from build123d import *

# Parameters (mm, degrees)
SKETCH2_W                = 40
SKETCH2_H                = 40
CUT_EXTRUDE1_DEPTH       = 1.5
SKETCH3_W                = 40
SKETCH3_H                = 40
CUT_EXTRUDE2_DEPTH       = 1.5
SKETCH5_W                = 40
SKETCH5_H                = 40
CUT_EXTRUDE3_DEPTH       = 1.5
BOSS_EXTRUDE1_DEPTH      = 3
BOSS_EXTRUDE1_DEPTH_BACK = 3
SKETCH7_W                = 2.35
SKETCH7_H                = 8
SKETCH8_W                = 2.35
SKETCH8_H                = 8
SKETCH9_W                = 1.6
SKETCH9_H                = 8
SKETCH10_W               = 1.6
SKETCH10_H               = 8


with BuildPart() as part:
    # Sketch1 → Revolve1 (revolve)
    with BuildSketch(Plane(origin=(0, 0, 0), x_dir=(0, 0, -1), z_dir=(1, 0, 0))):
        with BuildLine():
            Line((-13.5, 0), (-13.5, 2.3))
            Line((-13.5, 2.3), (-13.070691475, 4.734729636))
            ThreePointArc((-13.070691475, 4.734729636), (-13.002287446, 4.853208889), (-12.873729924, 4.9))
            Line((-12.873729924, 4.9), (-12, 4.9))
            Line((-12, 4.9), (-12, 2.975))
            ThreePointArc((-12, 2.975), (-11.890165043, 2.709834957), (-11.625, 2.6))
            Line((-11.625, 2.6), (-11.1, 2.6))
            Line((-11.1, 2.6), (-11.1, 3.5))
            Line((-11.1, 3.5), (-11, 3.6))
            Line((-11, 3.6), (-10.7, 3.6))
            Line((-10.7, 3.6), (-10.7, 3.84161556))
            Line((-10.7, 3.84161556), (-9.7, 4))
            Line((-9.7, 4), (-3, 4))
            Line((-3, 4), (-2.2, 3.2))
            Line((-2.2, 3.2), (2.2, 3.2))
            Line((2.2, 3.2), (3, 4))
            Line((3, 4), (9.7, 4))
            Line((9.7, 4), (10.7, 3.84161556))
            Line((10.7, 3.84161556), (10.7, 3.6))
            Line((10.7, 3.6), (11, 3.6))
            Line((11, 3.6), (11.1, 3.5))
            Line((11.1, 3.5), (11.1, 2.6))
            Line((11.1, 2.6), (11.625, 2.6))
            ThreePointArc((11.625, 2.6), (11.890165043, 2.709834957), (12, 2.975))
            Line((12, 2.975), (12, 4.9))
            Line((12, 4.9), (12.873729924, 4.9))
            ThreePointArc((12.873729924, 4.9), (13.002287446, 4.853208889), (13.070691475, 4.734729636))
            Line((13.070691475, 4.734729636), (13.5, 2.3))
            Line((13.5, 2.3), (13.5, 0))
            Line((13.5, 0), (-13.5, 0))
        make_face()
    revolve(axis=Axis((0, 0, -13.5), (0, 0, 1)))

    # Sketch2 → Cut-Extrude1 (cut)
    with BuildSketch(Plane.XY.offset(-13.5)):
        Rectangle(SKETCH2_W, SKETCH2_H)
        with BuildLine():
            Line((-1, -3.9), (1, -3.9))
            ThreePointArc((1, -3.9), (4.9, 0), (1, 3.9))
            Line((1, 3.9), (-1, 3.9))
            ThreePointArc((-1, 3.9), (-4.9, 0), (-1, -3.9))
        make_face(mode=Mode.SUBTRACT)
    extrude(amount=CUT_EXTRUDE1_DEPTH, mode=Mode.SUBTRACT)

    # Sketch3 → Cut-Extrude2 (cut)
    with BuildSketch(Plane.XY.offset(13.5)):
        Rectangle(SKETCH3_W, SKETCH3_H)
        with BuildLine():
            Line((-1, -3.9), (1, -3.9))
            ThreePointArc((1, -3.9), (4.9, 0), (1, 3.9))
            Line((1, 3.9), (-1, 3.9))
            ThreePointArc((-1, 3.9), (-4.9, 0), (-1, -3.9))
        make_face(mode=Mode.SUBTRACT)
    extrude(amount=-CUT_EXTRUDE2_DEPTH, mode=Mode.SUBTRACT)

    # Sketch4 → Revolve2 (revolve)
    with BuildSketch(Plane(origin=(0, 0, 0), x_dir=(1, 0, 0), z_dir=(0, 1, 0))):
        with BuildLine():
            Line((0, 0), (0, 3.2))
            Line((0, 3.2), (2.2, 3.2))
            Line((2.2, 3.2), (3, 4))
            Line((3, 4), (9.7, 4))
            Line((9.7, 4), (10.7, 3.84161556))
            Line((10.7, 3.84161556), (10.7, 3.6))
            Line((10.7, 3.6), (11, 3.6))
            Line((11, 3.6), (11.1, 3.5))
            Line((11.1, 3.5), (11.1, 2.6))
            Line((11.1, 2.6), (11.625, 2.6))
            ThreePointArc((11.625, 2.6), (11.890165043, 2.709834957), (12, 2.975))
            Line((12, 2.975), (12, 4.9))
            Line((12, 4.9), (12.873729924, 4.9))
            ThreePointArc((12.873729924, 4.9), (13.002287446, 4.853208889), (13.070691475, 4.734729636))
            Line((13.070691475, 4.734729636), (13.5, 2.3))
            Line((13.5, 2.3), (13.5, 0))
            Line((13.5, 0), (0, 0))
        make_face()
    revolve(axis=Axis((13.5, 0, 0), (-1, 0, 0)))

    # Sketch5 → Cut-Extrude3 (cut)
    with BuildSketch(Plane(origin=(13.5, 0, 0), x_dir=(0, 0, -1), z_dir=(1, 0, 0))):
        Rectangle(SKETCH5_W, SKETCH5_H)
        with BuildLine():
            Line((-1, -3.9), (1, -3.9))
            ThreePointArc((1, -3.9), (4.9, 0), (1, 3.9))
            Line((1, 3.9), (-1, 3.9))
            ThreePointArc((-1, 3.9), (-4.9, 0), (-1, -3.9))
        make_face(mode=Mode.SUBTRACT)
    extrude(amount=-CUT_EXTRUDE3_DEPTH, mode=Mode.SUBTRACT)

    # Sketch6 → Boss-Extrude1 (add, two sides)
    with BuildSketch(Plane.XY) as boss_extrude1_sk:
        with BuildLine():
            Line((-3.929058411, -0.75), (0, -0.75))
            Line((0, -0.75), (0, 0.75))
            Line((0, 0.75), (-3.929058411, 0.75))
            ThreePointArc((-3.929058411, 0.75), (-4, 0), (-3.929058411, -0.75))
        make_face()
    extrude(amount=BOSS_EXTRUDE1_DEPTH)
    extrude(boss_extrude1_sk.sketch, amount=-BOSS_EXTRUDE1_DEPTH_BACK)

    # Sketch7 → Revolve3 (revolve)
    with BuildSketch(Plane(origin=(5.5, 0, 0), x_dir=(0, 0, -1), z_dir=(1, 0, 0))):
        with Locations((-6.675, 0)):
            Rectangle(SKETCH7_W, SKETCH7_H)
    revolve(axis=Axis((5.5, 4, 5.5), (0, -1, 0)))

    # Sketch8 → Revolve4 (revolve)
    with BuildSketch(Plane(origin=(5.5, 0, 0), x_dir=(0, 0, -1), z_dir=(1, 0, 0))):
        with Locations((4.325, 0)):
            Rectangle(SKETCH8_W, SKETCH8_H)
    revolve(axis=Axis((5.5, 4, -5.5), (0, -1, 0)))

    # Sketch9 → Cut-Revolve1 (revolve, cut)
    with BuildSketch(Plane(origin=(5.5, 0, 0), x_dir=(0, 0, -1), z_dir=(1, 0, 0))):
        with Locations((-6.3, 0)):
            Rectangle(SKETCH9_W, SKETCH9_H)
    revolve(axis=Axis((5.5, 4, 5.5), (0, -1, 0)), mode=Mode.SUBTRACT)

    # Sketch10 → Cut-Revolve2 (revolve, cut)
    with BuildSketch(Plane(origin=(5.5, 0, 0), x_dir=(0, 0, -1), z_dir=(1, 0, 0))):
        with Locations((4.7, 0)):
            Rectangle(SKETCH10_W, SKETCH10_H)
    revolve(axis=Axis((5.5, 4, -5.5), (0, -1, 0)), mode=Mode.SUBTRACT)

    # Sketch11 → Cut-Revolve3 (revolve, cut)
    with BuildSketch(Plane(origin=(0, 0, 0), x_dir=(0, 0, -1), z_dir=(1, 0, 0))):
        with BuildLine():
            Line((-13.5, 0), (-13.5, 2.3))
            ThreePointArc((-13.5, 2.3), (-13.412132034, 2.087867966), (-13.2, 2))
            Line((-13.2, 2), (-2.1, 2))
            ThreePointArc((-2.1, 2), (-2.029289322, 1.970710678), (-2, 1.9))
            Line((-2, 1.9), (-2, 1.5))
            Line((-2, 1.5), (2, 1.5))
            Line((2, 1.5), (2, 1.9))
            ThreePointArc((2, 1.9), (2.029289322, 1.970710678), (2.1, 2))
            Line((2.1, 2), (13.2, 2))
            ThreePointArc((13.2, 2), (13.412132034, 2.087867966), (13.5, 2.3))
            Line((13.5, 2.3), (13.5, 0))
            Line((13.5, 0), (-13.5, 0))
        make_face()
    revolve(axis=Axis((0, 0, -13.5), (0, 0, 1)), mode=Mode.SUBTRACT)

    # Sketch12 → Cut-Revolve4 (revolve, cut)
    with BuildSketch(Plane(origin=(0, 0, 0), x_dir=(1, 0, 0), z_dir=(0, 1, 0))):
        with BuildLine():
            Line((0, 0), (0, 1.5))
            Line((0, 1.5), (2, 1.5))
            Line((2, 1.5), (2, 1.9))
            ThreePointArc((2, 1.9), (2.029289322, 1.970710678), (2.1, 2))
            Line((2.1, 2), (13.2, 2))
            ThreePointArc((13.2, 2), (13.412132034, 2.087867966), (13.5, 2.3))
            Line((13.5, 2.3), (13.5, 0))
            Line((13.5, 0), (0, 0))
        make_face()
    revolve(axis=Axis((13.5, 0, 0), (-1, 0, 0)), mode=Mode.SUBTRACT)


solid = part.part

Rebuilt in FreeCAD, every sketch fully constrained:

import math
import FreeCAD as App
import Part
import Sketcher

V = App.Vector
Q = App.Units.Quantity


def add_polygon(sketch, points):
    """Adds a closed chain of lines whose ends are joined by coincident constraints."""
    first, n = sketch.GeometryCount, len(points)
    for a, b in zip(points, points[1:] + points[:1]):
        sketch.addGeometry(Part.LineSegment(App.Vector(*a, 0), App.Vector(*b, 0)), False)
    for i in range(n):
        sketch.addConstraint(Sketcher.Constraint("Coincident", first + i, 2, first + (i + 1) % n, 1))

doc = App.newDocument("Part")
body = doc.addObject("PartDesign::Body", "Body")

sketch1 = doc.addObject("Sketcher::SketchObject", "Sketch")
body.addObject(sketch1)
sketch1.AttachmentSupport = (doc.YZ_Plane, [""])
sketch1.MapMode = "FlatFace"
sketch1.addGeometry(Part.LineSegment(V(2.3, 13.5, 0), V(0, 13.5, 0)), False)
sketch1.addGeometry(Part.LineSegment(V(0, 13.5, 0), V(0, -13.5, 0)), False)
sketch1.addGeometry(Part.LineSegment(V(0, -13.5, 0), V(2.3, -13.5, 0)), False)
sketch1.addGeometry(Part.LineSegment(V(2.3, -13.5, 0), V(4.73, -13.07, 0)), False)
sketch1.addGeometry(Part.ArcOfCircle(Part.Circle(V(4.7, -12.87, 0), V(0, 0, 1), 0.2), math.radians(-80), math.radians(0)), False)
sketch1.addGeometry(Part.LineSegment(V(4.9, -12.87, 0), V(4.9, -12, 0)), False)
sketch1.addGeometry(Part.LineSegment(V(4.9, -12, 0), V(2.98, -12, 0)), False)
sketch1.addGeometry(Part.ArcOfCircle(Part.Circle(V(2.98, -11.62, 0), V(0, 0, 1), 0.38), math.radians(180), math.radians(270)), False)
sketch1.addGeometry(Part.LineSegment(V(2.6, -11.62, 0), V(2.6, -11.1, 0)), False)
sketch1.addGeometry(Part.LineSegment(V(2.6, -11.1, 0), V(3.5, -11.1, 0)), False)
sketch1.addGeometry(Part.LineSegment(V(3.5, -11.1, 0), V(3.6, -11, 0)), False)
sketch1.addGeometry(Part.LineSegment(V(3.6, -11, 0), V(3.6, -10.7, 0)), False)
sketch1.addGeometry(Part.LineSegment(V(3.6, -10.7, 0), V(3.84, -10.7, 0)), False)
sketch1.addGeometry(Part.LineSegment(V(3.84, -10.7, 0), V(4, -9.7, 0)), False)
sketch1.addGeometry(Part.LineSegment(V(4, -9.7, 0), V(4, -3, 0)), False)
sketch1.addGeometry(Part.LineSegment(V(4, -3, 0), V(3.2, -2.2, 0)), False)
sketch1.addGeometry(Part.LineSegment(V(3.2, -2.2, 0), V(3.2, 2.2, 0)), False)
sketch1.addGeometry(Part.LineSegment(V(3.2, 2.2, 0), V(4, 3, 0)), False)
sketch1.addGeometry(Part.LineSegment(V(4, 3, 0), V(4, 9.7, 0)), False)
sketch1.addGeometry(Part.LineSegment(V(4, 9.7, 0), V(3.84, 10.7, 0)), False)
sketch1.addGeometry(Part.LineSegment(V(3.84, 10.7, 0), V(3.6, 10.7, 0)), False)
sketch1.addGeometry(Part.LineSegment(V(3.6, 10.7, 0), V(3.6, 11, 0)), False)
sketch1.addGeometry(Part.LineSegment(V(3.6, 11, 0), V(3.5, 11.1, 0)), False)
sketch1.addGeometry(Part.LineSegment(V(3.5, 11.1, 0), V(2.6, 11.1, 0)), False)
sketch1.addGeometry(Part.LineSegment(V(2.6, 11.1, 0), V(2.6, 11.62, 0)), False)
sketch1.addGeometry(Part.ArcOfCircle(Part.Circle(V(2.98, 11.62, 0), V(0, 0, 1), 0.38), math.radians(90), math.radians(180)), False)
sketch1.addGeometry(Part.LineSegment(V(2.98, 12, 0), V(4.9, 12, 0)), False)
sketch1.addGeometry(Part.LineSegment(V(4.9, 12, 0), V(4.9, 12.87, 0)), False)
sketch1.addGeometry(Part.ArcOfCircle(Part.Circle(V(4.7, 12.87, 0), V(0, 0, 1), 0.2), math.radians(0), math.radians(80)), False)
sketch1.addGeometry(Part.LineSegment(V(4.73, 13.07, 0), V(2.3, 13.5, 0)), False)
sketch1.addConstraint(Sketcher.Constraint("Coincident", 0, 2, 1, 1))
sketch1.addConstraint(Sketcher.Constraint("Coincident", 1, 2, 2, 1))
sketch1.addConstraint(Sketcher.Constraint("Coincident", 2, 2, 3, 1))
sketch1.addConstraint(Sketcher.Constraint("Tangent", 3, 2, 4, 1))
sketch1.addConstraint(Sketcher.Constraint("Tangent", 4, 2, 5, 1))
sketch1.addConstraint(Sketcher.Constraint("Coincident", 5, 2, 6, 1))
sketch1.addConstraint(Sketcher.Constraint("Tangent", 6, 2, 7, 2))
sketch1.addConstraint(Sketcher.Constraint("Tangent", 7, 1, 8, 1))
sketch1.addConstraint(Sketcher.Constraint("Coincident", 8, 2, 9, 1))
sketch1.addConstraint(Sketcher.Constraint("Coincident", 9, 2, 10, 1))
sketch1.addConstraint(Sketcher.Constraint("Coincident", 10, 2, 11, 1))
sketch1.addConstraint(Sketcher.Constraint("Coincident", 11, 2, 12, 1))
sketch1.addConstraint(Sketcher.Constraint("Coincident", 12, 2, 13, 1))
sketch1.addConstraint(Sketcher.Constraint("Coincident", 13, 2, 14, 1))
sketch1.addConstraint(Sketcher.Constraint("Coincident", 14, 2, 15, 1))
sketch1.addConstraint(Sketcher.Constraint("Coincident", 15, 2, 16, 1))
sketch1.addConstraint(Sketcher.Constraint("Coincident", 16, 2, 17, 1))
sketch1.addConstraint(Sketcher.Constraint("Coincident", 17, 2, 18, 1))
sketch1.addConstraint(Sketcher.Constraint("Coincident", 18, 2, 19, 1))
sketch1.addConstraint(Sketcher.Constraint("Coincident", 19, 2, 20, 1))
sketch1.addConstraint(Sketcher.Constraint("Coincident", 20, 2, 21, 1))
sketch1.addConstraint(Sketcher.Constraint("Coincident", 21, 2, 22, 1))
sketch1.addConstraint(Sketcher.Constraint("Coincident", 22, 2, 23, 1))
sketch1.addConstraint(Sketcher.Constraint("Coincident", 23, 2, 24, 1))
sketch1.addConstraint(Sketcher.Constraint("Tangent", 24, 2, 25, 2))
sketch1.addConstraint(Sketcher.Constraint("Tangent", 25, 1, 26, 1))
sketch1.addConstraint(Sketcher.Constraint("Coincident", 26, 2, 27, 1))
sketch1.addConstraint(Sketcher.Constraint("Tangent", 27, 2, 28, 1))
sketch1.addConstraint(Sketcher.Constraint("Tangent", 28, 2, 29, 1))
sketch1.addConstraint(Sketcher.Constraint("Coincident", 29, 2, 0, 1))
sketch1.addConstraint(Sketcher.Constraint("Horizontal", 0))
sketch1.addConstraint(Sketcher.Constraint("Vertical", 1))
sketch1.addConstraint(Sketcher.Constraint("Horizontal", 2))
sketch1.addConstraint(Sketcher.Constraint("Vertical", 5))
sketch1.addConstraint(Sketcher.Constraint("Horizontal", 6))
sketch1.addConstraint(Sketcher.Constraint("Vertical", 8))
sketch1.addConstraint(Sketcher.Constraint("Horizontal", 9))
sketch1.addConstraint(Sketcher.Constraint("Vertical", 11))
sketch1.addConstraint(Sketcher.Constraint("Horizontal", 12))
sketch1.addConstraint(Sketcher.Constraint("Vertical", 14))
sketch1.addConstraint(Sketcher.Constraint("Vertical", 16))
sketch1.addConstraint(Sketcher.Constraint("Vertical", 18))
sketch1.addConstraint(Sketcher.Constraint("Horizontal", 20))
sketch1.addConstraint(Sketcher.Constraint("Vertical", 21))
sketch1.addConstraint(Sketcher.Constraint("Horizontal", 23))
sketch1.addConstraint(Sketcher.Constraint("Vertical", 24))
sketch1.addConstraint(Sketcher.Constraint("Horizontal", 26))
sketch1.addConstraint(Sketcher.Constraint("Vertical", 27))
sketch1.addConstraint(Sketcher.Constraint("Equal", 7, 25))
sketch1.addConstraint(Sketcher.Constraint("Equal", 4, 28))
sketch1.addConstraint(Sketcher.Constraint("Symmetric", 0, 2, 1, 2, -1, 1))
sketch1.addConstraint(Sketcher.Constraint("Symmetric", 7, 3, 25, 3, -1))
sketch1.addConstraint(Sketcher.Constraint("Symmetric", 4, 3, 28, 3, -1))
sketch1.addConstraint(Sketcher.Constraint("Symmetric", 14, 2, 17, 2, -1))
sketch1.addConstraint(Sketcher.Constraint("Symmetric", 12, 2, 19, 2, -1))
sketch1.addConstraint(Sketcher.Constraint("Symmetric", 10, 2, 21, 2, -1))
sketch1.addConstraint(Sketcher.Constraint("Symmetric", 9, 2, 22, 2, -1))
sketch1.addConstraint(Sketcher.Constraint("Perpendicular", 10, 15))
sketch1.addConstraint(Sketcher.Constraint("Perpendicular", 15, 17))
sketch1.addConstraint(Sketcher.Constraint("Perpendicular", 17, 22))
sketch1.addConstraint(Sketcher.Constraint("Vertical", 3, 2, 28, 2))
sketch1.addConstraint(Sketcher.Constraint("Equal", 14, 18))
sketch1.addConstraint(Sketcher.Constraint("Radius", 4, Q("0.2 mm")))
sketch1.addConstraint(Sketcher.Constraint("DistanceY", 1, 2, 1, 1, Q("27 mm")))
sketch1.addConstraint(Sketcher.Constraint("Angle", 3, Q("10 deg")))
sketch1.addConstraint(Sketcher.Constraint("Angle", 13, Q("81 deg")))
sketch1.addConstraint(Sketcher.Constraint("DistanceX", 0, 2, 0, 1, Q("2.3 mm")))
sketch1.addConstraint(Sketcher.Constraint("DistanceX", 9, 1, 9, 2, Q("0.9 mm")))
sketch1.addConstraint(Sketcher.Constraint("DistanceY", 11, 1, 11, 2, Q("0.3 mm")))
sketch1.addConstraint(Sketcher.Constraint("DistanceY", 14, 1, 14, 2, Q("6.7 mm")))
sketch1.addConstraint(Sketcher.Constraint("DistanceY", 16, 1, 16, 2, Q("4.4 mm")))
sketch1.addConstraint(Sketcher.Constraint("DistanceY", 5, 2, -1, 1, Q("12 mm")))
sketch1.addConstraint(Sketcher.Constraint("DistanceY", 10, 2, -1, 1, Q("11 mm")))
sketch1.addConstraint(Sketcher.Constraint("DistanceX", -1, 1, 13, 2, Q("4 mm")))
sketch1.addConstraint(Sketcher.Constraint("DistanceY", 14, 2, -1, 1, Q("3 mm")))
sketch1.addConstraint(Sketcher.Constraint("Radius", 7, Q("0.375 mm")))
sketch1.addConstraint(Sketcher.Constraint("DistanceX", 8, 2, 10, 2, Q("1 mm")))
sketch1.addConstraint(Sketcher.Constraint("DistanceX", -1, 1, 4, 3, Q("4.7 mm")))
sketch1.addConstraint(Sketcher.Constraint("DistanceX", -1, 1, 7, 1, Q("2.6 mm")))
revolution = doc.addObject("PartDesign::Revolution", "Revolution")
body.addObject(revolution)
revolution.Profile = sketch1
revolution.ReferenceAxis = (sketch1, ["V_Axis"])
revolution.Angle = 360

sketch2 = doc.addObject("Sketcher::SketchObject", "Sketch001")
body.addObject(sketch2)
sketch2.AttachmentSupport = (doc.XY_Plane, [""])
sketch2.MapMode = "FlatFace"
sketch2.AttachmentOffset = App.Placement(V(0, 0, -13.5), App.Rotation())
add_polygon(sketch2, [(-20, 20), (-20, -20), (20, -20), (20, 20)])
sketch2.addGeometry(Part.LineSegment(V(1, -3.9, 0), V(-1, -3.9, 0)), False)
sketch2.addGeometry(Part.ArcOfCircle(Part.Circle(V(-1, 0, 0), V(0, 0, 1), 3.9), math.radians(90), math.radians(270)), False)
sketch2.addGeometry(Part.LineSegment(V(-1, 3.9, 0), V(1, 3.9, 0)), False)
sketch2.addGeometry(Part.ArcOfCircle(Part.Circle(V(1, 0, 0), V(0, 0, 1), 3.9), math.radians(-90), math.radians(90)), False)
sketch2.addConstraint(Sketcher.Constraint("Tangent", 4, 2, 5, 2))
sketch2.addConstraint(Sketcher.Constraint("Tangent", 5, 1, 6, 1))
sketch2.addConstraint(Sketcher.Constraint("Tangent", 6, 2, 7, 2))
sketch2.addConstraint(Sketcher.Constraint("Tangent", 7, 1, 4, 1))
sketch2.addConstraint(Sketcher.Constraint("Vertical", 0))
sketch2.addConstraint(Sketcher.Constraint("Horizontal", 1))
sketch2.addConstraint(Sketcher.Constraint("Vertical", 2))
sketch2.addConstraint(Sketcher.Constraint("Horizontal", 3))
sketch2.addConstraint(Sketcher.Constraint("Horizontal", 4))
sketch2.addConstraint(Sketcher.Constraint("Horizontal", 6))
sketch2.addConstraint(Sketcher.Constraint("Symmetric", 5, 3, 7, 3, -1, 1))
sketch2.addConstraint(Sketcher.Constraint("Symmetric", 0, 2, 2, 2, -1, 1))
sketch2.addConstraint(Sketcher.Constraint("Equal", 3, 0))
sketch2.addConstraint(Sketcher.Constraint("Radius", 5, Q("3.9 mm")))
sketch2.addConstraint(Sketcher.Constraint("DistanceX", 1, 1, 1, 2, Q("40 mm")))
sketch2.addConstraint(Sketcher.Constraint("DistanceX", 4, 2, 4, 1, Q("2 mm")))
pocket1 = doc.addObject("PartDesign::Pocket", "Pocket")
body.addObject(pocket1)
pocket1.Profile = sketch2
pocket1.Length = 1.5
pocket1.Reversed = True

sketch3 = doc.addObject("Sketcher::SketchObject", "Sketch002")
body.addObject(sketch3)
sketch3.AttachmentSupport = (doc.XY_Plane, [""])
sketch3.MapMode = "FlatFace"
sketch3.AttachmentOffset = App.Placement(V(0, 0, 13.5), App.Rotation())
add_polygon(sketch3, [(-20, 20), (-20, -20), (20, -20), (20, 20)])
sketch3.addGeometry(Part.LineSegment(V(1, -3.9, 0), V(-1, -3.9, 0)), False)
sketch3.addGeometry(Part.ArcOfCircle(Part.Circle(V(-1, 0, 0), V(0, 0, 1), 3.9), math.radians(90), math.radians(270)), False)
sketch3.addGeometry(Part.LineSegment(V(-1, 3.9, 0), V(1, 3.9, 0)), False)
sketch3.addGeometry(Part.ArcOfCircle(Part.Circle(V(1, 0, 0), V(0, 0, 1), 3.9), math.radians(-90), math.radians(90)), False)
sketch3.addConstraint(Sketcher.Constraint("Tangent", 4, 2, 5, 2))
sketch3.addConstraint(Sketcher.Constraint("Tangent", 5, 1, 6, 1))
sketch3.addConstraint(Sketcher.Constraint("Tangent", 6, 2, 7, 2))
sketch3.addConstraint(Sketcher.Constraint("Tangent", 7, 1, 4, 1))
sketch3.addConstraint(Sketcher.Constraint("Vertical", 0))
sketch3.addConstraint(Sketcher.Constraint("Horizontal", 1))
sketch3.addConstraint(Sketcher.Constraint("Vertical", 2))
sketch3.addConstraint(Sketcher.Constraint("Horizontal", 3))
sketch3.addConstraint(Sketcher.Constraint("Horizontal", 4))
sketch3.addConstraint(Sketcher.Constraint("Horizontal", 6))
sketch3.addConstraint(Sketcher.Constraint("Symmetric", 5, 3, 7, 3, -1, 1))
sketch3.addConstraint(Sketcher.Constraint("Symmetric", 0, 2, 2, 2, -1, 1))
sketch3.addConstraint(Sketcher.Constraint("Equal", 3, 0))
sketch3.addConstraint(Sketcher.Constraint("Radius", 5, Q("3.9 mm")))
sketch3.addConstraint(Sketcher.Constraint("DistanceX", 1, 1, 1, 2, Q("40 mm")))
sketch3.addConstraint(Sketcher.Constraint("DistanceX", 4, 2, 4, 1, Q("2 mm")))
pocket2 = doc.addObject("PartDesign::Pocket", "Pocket001")
body.addObject(pocket2)
pocket2.Profile = sketch3
pocket2.Length = 1.5

sketch4 = doc.addObject("Sketcher::SketchObject", "Sketch003")
body.addObject(sketch4)
sketch4.AttachmentSupport = (doc.XZ_Plane, [""])
sketch4.MapMode = "FlatFace"
sketch4.addGeometry(Part.LineSegment(V(0, -3.2, 0), V(0, 0, 0)), False)
sketch4.addGeometry(Part.LineSegment(V(0, 0, 0), V(13.5, 0, 0)), False)
sketch4.addGeometry(Part.LineSegment(V(13.5, 0, 0), V(13.5, -2.3, 0)), False)
sketch4.addGeometry(Part.LineSegment(V(13.5, -2.3, 0), V(13.07, -4.73, 0)), False)
sketch4.addGeometry(Part.ArcOfCircle(Part.Circle(V(12.87, -4.7, 0), V(0, 0, 1), 0.2), math.radians(-90), math.radians(-10)), False)
sketch4.addGeometry(Part.LineSegment(V(12.87, -4.9, 0), V(12, -4.9, 0)), False)
sketch4.addGeometry(Part.LineSegment(V(12, -4.9, 0), V(12, -2.98, 0)), False)
sketch4.addGeometry(Part.ArcOfCircle(Part.Circle(V(11.62, -2.98, 0), V(0, 0, 1), 0.38), math.radians(0), math.radians(90)), False)
sketch4.addGeometry(Part.LineSegment(V(11.62, -2.6, 0), V(11.1, -2.6, 0)), False)
sketch4.addGeometry(Part.LineSegment(V(11.1, -2.6, 0), V(11.1, -3.5, 0)), False)
sketch4.addGeometry(Part.LineSegment(V(11.1, -3.5, 0), V(11, -3.6, 0)), False)
sketch4.addGeometry(Part.LineSegment(V(11, -3.6, 0), V(10.7, -3.6, 0)), False)
sketch4.addGeometry(Part.LineSegment(V(10.7, -3.6, 0), V(10.7, -3.84, 0)), False)
sketch4.addGeometry(Part.LineSegment(V(10.7, -3.84, 0), V(9.7, -4, 0)), False)
sketch4.addGeometry(Part.LineSegment(V(9.7, -4, 0), V(3, -4, 0)), False)
sketch4.addGeometry(Part.LineSegment(V(3, -4, 0), V(2.2, -3.2, 0)), False)
sketch4.addGeometry(Part.LineSegment(V(2.2, -3.2, 0), V(0, -3.2, 0)), False)
sketch4.addConstraint(Sketcher.Constraint("Coincident", 0, 2, 1, 1))
sketch4.addConstraint(Sketcher.Constraint("Coincident", 1, 2, 2, 1))
sketch4.addConstraint(Sketcher.Constraint("Coincident", 2, 2, 3, 1))
sketch4.addConstraint(Sketcher.Constraint("Tangent", 3, 2, 4, 2))
sketch4.addConstraint(Sketcher.Constraint("Tangent", 4, 1, 5, 1))
sketch4.addConstraint(Sketcher.Constraint("Coincident", 5, 2, 6, 1))
sketch4.addConstraint(Sketcher.Constraint("Tangent", 6, 2, 7, 1))
sketch4.addConstraint(Sketcher.Constraint("Tangent", 7, 2, 8, 1))
sketch4.addConstraint(Sketcher.Constraint("Coincident", 8, 2, 9, 1))
sketch4.addConstraint(Sketcher.Constraint("Coincident", 9, 2, 10, 1))
sketch4.addConstraint(Sketcher.Constraint("Coincident", 10, 2, 11, 1))
sketch4.addConstraint(Sketcher.Constraint("Coincident", 11, 2, 12, 1))
sketch4.addConstraint(Sketcher.Constraint("Coincident", 12, 2, 13, 1))
sketch4.addConstraint(Sketcher.Constraint("Coincident", 13, 2, 14, 1))
sketch4.addConstraint(Sketcher.Constraint("Coincident", 14, 2, 15, 1))
sketch4.addConstraint(Sketcher.Constraint("Coincident", 15, 2, 16, 1))
sketch4.addConstraint(Sketcher.Constraint("Coincident", 16, 2, 0, 1))
sketch4.addConstraint(Sketcher.Constraint("Vertical", 0))
sketch4.addConstraint(Sketcher.Constraint("Horizontal", 1))
sketch4.addConstraint(Sketcher.Constraint("Vertical", 2))
sketch4.addConstraint(Sketcher.Constraint("Horizontal", 5))
sketch4.addConstraint(Sketcher.Constraint("Vertical", 6))
sketch4.addConstraint(Sketcher.Constraint("Horizontal", 8))
sketch4.addConstraint(Sketcher.Constraint("Vertical", 9))
sketch4.addConstraint(Sketcher.Constraint("Horizontal", 11))
sketch4.addConstraint(Sketcher.Constraint("Vertical", 12))
sketch4.addConstraint(Sketcher.Constraint("Horizontal", 14))
sketch4.addConstraint(Sketcher.Constraint("Horizontal", 16))
sketch4.addConstraint(Sketcher.Constraint("Coincident", 0, 2, -1, 1))
sketch4.addConstraint(Sketcher.Constraint("Perpendicular", 10, 15))
sketch4.addConstraint(Sketcher.Constraint("Radius", 4, Q("0.2 mm")))
sketch4.addConstraint(Sketcher.Constraint("Angle", 3, Q("-100 deg")))
sketch4.addConstraint(Sketcher.Constraint("Angle", 10, Q("-135 deg")))
sketch4.addConstraint(Sketcher.Constraint("Angle", 13, Q("-171 deg")))
sketch4.addConstraint(Sketcher.Constraint("DistanceX", 1, 1, 1, 2, Q("13.5 mm")))
sketch4.addConstraint(Sketcher.Constraint("DistanceX", 11, 2, 11, 1, Q("0.3 mm")))
sketch4.addConstraint(Sketcher.Constraint("DistanceX", 14, 2, 14, 1, Q("6.7 mm")))
sketch4.addConstraint(Sketcher.Constraint("DistanceX", 16, 2, 16, 1, Q("2.2 mm")))
sketch4.addConstraint(Sketcher.Constraint("DistanceY", 0, 1, 0, 2, Q("3.2 mm")))
sketch4.addConstraint(Sketcher.Constraint("DistanceY", 2, 2, 2, 1, Q("2.3 mm")))
sketch4.addConstraint(Sketcher.Constraint("DistanceY", 9, 2, 9, 1, Q("0.9 mm")))
sketch4.addConstraint(Sketcher.Constraint("DistanceX", -1, 1, 5, 2, Q("12 mm")))
sketch4.addConstraint(Sketcher.Constraint("DistanceX", -1, 1, 10, 2, Q("11 mm")))
sketch4.addConstraint(Sketcher.Constraint("DistanceY", 13, 2, -1, 1, Q("4 mm")))
sketch4.addConstraint(Sketcher.Constraint("Radius", 7, Q("0.375 mm")))
sketch4.addConstraint(Sketcher.Constraint("DistanceY", 10, 2, 8, 2, Q("1 mm")))
sketch4.addConstraint(Sketcher.Constraint("DistanceY", 4, 3, -1, 1, Q("4.7 mm")))
sketch4.addConstraint(Sketcher.Constraint("DistanceY", 7, 2, -1, 1, Q("2.6 mm")))
revolution2 = doc.addObject("PartDesign::Revolution", "Revolution001")
body.addObject(revolution2)
revolution2.Profile = sketch4
revolution2.ReferenceAxis = (sketch4, ["H_Axis"])
revolution2.Angle = 360

sketch5 = doc.addObject("Sketcher::SketchObject", "Sketch004")
body.addObject(sketch5)
sketch5.AttachmentSupport = (doc.YZ_Plane, [""])
sketch5.MapMode = "FlatFace"
sketch5.AttachmentOffset = App.Placement(V(0, 0, 13.5), App.Rotation())
add_polygon(sketch5, [(20, 20), (-20, 20), (-20, -20), (20, -20)])
sketch5.addGeometry(Part.LineSegment(V(-3.9, -1, 0), V(-3.9, 1, 0)), False)
sketch5.addGeometry(Part.ArcOfCircle(Part.Circle(V(0, 1, 0), V(0, 0, 1), 3.9), math.radians(0), math.radians(180)), False)
sketch5.addGeometry(Part.LineSegment(V(3.9, 1, 0), V(3.9, -1, 0)), False)
sketch5.addGeometry(Part.ArcOfCircle(Part.Circle(V(0, -1, 0), V(0, 0, 1), 3.9), math.radians(180), math.radians(360)), False)
sketch5.addConstraint(Sketcher.Constraint("Tangent", 4, 2, 5, 2))
sketch5.addConstraint(Sketcher.Constraint("Tangent", 5, 1, 6, 1))
sketch5.addConstraint(Sketcher.Constraint("Tangent", 6, 2, 7, 2))
sketch5.addConstraint(Sketcher.Constraint("Tangent", 7, 1, 4, 1))
sketch5.addConstraint(Sketcher.Constraint("Horizontal", 0))
sketch5.addConstraint(Sketcher.Constraint("Vertical", 1))
sketch5.addConstraint(Sketcher.Constraint("Horizontal", 2))
sketch5.addConstraint(Sketcher.Constraint("Vertical", 3))
sketch5.addConstraint(Sketcher.Constraint("Vertical", 4))
sketch5.addConstraint(Sketcher.Constraint("Vertical", 6))
sketch5.addConstraint(Sketcher.Constraint("Symmetric", 5, 3, 7, 3, -1, 1))
sketch5.addConstraint(Sketcher.Constraint("Symmetric", 0, 2, 2, 2, -1, 1))
sketch5.addConstraint(Sketcher.Constraint("Equal", 2, 1))
sketch5.addConstraint(Sketcher.Constraint("Radius", 5, Q("3.9 mm")))
sketch5.addConstraint(Sketcher.Constraint("DistanceX", 0, 2, 0, 1, Q("40 mm")))
sketch5.addConstraint(Sketcher.Constraint("DistanceY", 4, 1, 4, 2, Q("2 mm")))
pocket3 = doc.addObject("PartDesign::Pocket", "Pocket002")
body.addObject(pocket3)
pocket3.Profile = sketch5
pocket3.Length = 1.5

sketch6 = doc.addObject("Sketcher::SketchObject", "Sketch005")
body.addObject(sketch6)
sketch6.AttachmentSupport = (doc.XY_Plane, [""])
sketch6.MapMode = "FlatFace"
sketch6.addGeometry(Part.LineSegment(V(-3.9, -0.8, 0), V(0, -0.8, 0)), False)
sketch6.addGeometry(Part.LineSegment(V(0, -0.8, 0), V(0, 0.8, 0)), False)
sketch6.addGeometry(Part.LineSegment(V(0, 0.8, 0), V(-3.9, 0.8, 0)), False)
sketch6.addGeometry(Part.ArcOfCircle(Part.Circle(V(0, 0, 0), V(0, 0, 1), 4), math.radians(169), math.radians(191)), False)
sketch6.addConstraint(Sketcher.Constraint("Coincident", 0, 2, 1, 1))
sketch6.addConstraint(Sketcher.Constraint("Coincident", 1, 2, 2, 1))
sketch6.addConstraint(Sketcher.Constraint("Coincident", 2, 2, 3, 1))
sketch6.addConstraint(Sketcher.Constraint("Coincident", 3, 2, 0, 1))
sketch6.addConstraint(Sketcher.Constraint("Horizontal", 0))
sketch6.addConstraint(Sketcher.Constraint("Vertical", 1))
sketch6.addConstraint(Sketcher.Constraint("Horizontal", 2))
sketch6.addConstraint(Sketcher.Constraint("Coincident", 3, 3, -1, 1))
sketch6.addConstraint(Sketcher.Constraint("Symmetric", 0, 2, 1, 2, -1, 1))
sketch6.addConstraint(Sketcher.Constraint("Radius", 3, Q("4 mm")))
sketch6.addConstraint(Sketcher.Constraint("DistanceY", 1, 1, 1, 2, Q("1.5 mm")))
pad1 = doc.addObject("PartDesign::Pad", "Pad")
body.addObject(pad1)
pad1.Profile = sketch6
pad1.Type = "TwoLengths"
pad1.Length = 3
pad1.Length2 = 3

sketch7 = doc.addObject("Sketcher::SketchObject", "Sketch006")
body.addObject(sketch7)
sketch7.AttachmentSupport = (doc.YZ_Plane, [""])
sketch7.MapMode = "FlatFace"
sketch7.AttachmentOffset = App.Placement(V(0, 0, 5.5), App.Rotation())
add_polygon(sketch7, [(4, 7.8), (-4, 7.8), (-4, 5.5), (4, 5.5)])
sketch7.addGeometry(Part.LineSegment(V(4, 5.5, 0), V(-4, 5.5, 0)), True)
sketch7.addConstraint(Sketcher.Constraint("Horizontal", 0))
sketch7.addConstraint(Sketcher.Constraint("Vertical", 1))
sketch7.addConstraint(Sketcher.Constraint("Horizontal", 2))
sketch7.addConstraint(Sketcher.Constraint("Vertical", 3))
sketch7.addConstraint(Sketcher.Constraint("Horizontal", 4))
sketch7.addConstraint(Sketcher.Constraint("Coincident", 4, 1, 2, 2))
sketch7.addConstraint(Sketcher.Constraint("Vertical", 0, 2, 4, 2))
sketch7.addConstraint(Sketcher.Constraint("DistanceX", 0, 2, 0, 1, Q("8 mm")))
sketch7.addConstraint(Sketcher.Constraint("DistanceX", 0, 2, -1, 1, Q("4 mm")))
sketch7.addConstraint(Sketcher.Constraint("DistanceY", 1, 2, 1, 1, Q("2.35 mm")))
sketch7.addConstraint(Sketcher.Constraint("DistanceY", -1, 1, 1, 2, Q("5.5 mm")))
revolution3 = doc.addObject("PartDesign::Revolution", "Revolution002")
body.addObject(revolution3)
revolution3.Profile = sketch7
revolution3.ReferenceAxis = (sketch7, ["Axis0"])
revolution3.Angle = 360

sketch8 = doc.addObject("Sketcher::SketchObject", "Sketch007")
body.addObject(sketch8)
sketch8.AttachmentSupport = (doc.YZ_Plane, [""])
sketch8.MapMode = "FlatFace"
sketch8.AttachmentOffset = App.Placement(V(0, 0, 5.5), App.Rotation())
add_polygon(sketch8, [(4, -3.1), (-4, -3.1), (-4, -5.5), (4, -5.5)])
sketch8.addGeometry(Part.LineSegment(V(4, -5.5, 0), V(-4, -5.5, 0)), True)
sketch8.addConstraint(Sketcher.Constraint("Horizontal", 0))
sketch8.addConstraint(Sketcher.Constraint("Vertical", 1))
sketch8.addConstraint(Sketcher.Constraint("Horizontal", 2))
sketch8.addConstraint(Sketcher.Constraint("Vertical", 3))
sketch8.addConstraint(Sketcher.Constraint("Horizontal", 4))
sketch8.addConstraint(Sketcher.Constraint("Coincident", 4, 1, 2, 2))
sketch8.addConstraint(Sketcher.Constraint("Vertical", 0, 2, 4, 2))
sketch8.addConstraint(Sketcher.Constraint("DistanceX", 0, 2, 0, 1, Q("8 mm")))
sketch8.addConstraint(Sketcher.Constraint("DistanceX", 0, 2, -1, 1, Q("4 mm")))
sketch8.addConstraint(Sketcher.Constraint("DistanceY", 1, 2, 1, 1, Q("2.35 mm")))
sketch8.addConstraint(Sketcher.Constraint("DistanceY", 1, 2, -1, 1, Q("5.5 mm")))
revolution4 = doc.addObject("PartDesign::Revolution", "Revolution003")
body.addObject(revolution4)
revolution4.Profile = sketch8
revolution4.ReferenceAxis = (sketch8, ["Axis0"])
revolution4.Angle = 360

sketch9 = doc.addObject("Sketcher::SketchObject", "Sketch008")
body.addObject(sketch9)
sketch9.AttachmentSupport = (doc.YZ_Plane, [""])
sketch9.MapMode = "FlatFace"
sketch9.AttachmentOffset = App.Placement(V(0, 0, 5.5), App.Rotation())
add_polygon(sketch9, [(4, 7.1), (-4, 7.1), (-4, 5.5), (4, 5.5)])
sketch9.addGeometry(Part.LineSegment(V(4, 5.5, 0), V(-4, 5.5, 0)), True)
sketch9.addConstraint(Sketcher.Constraint("Horizontal", 0))
sketch9.addConstraint(Sketcher.Constraint("Vertical", 1))
sketch9.addConstraint(Sketcher.Constraint("Horizontal", 2))
sketch9.addConstraint(Sketcher.Constraint("Vertical", 3))
sketch9.addConstraint(Sketcher.Constraint("Horizontal", 4))
sketch9.addConstraint(Sketcher.Constraint("Coincident", 4, 1, 2, 2))
sketch9.addConstraint(Sketcher.Constraint("Vertical", 0, 2, 4, 2))
sketch9.addConstraint(Sketcher.Constraint("DistanceX", 0, 2, 0, 1, Q("8 mm")))
sketch9.addConstraint(Sketcher.Constraint("DistanceY", 1, 2, 1, 1, Q("1.6 mm")))
sketch9.addConstraint(Sketcher.Constraint("DistanceX", 0, 2, -1, 1, Q("4 mm")))
sketch9.addConstraint(Sketcher.Constraint("DistanceY", -1, 1, 0, 2, Q("7.1 mm")))
groove = doc.addObject("PartDesign::Groove", "Groove")
body.addObject(groove)
groove.Profile = sketch9
groove.ReferenceAxis = (sketch9, ["Axis0"])
groove.Angle = 360

sketch10 = doc.addObject("Sketcher::SketchObject", "Sketch009")
body.addObject(sketch10)
sketch10.AttachmentSupport = (doc.YZ_Plane, [""])
sketch10.MapMode = "FlatFace"
sketch10.AttachmentOffset = App.Placement(V(0, 0, 5.5), App.Rotation())
add_polygon(sketch10, [(4, -3.9), (-4, -3.9), (-4, -5.5), (4, -5.5)])
sketch10.addGeometry(Part.LineSegment(V(4, -5.5, 0), V(-4, -5.5, 0)), True)
sketch10.addConstraint(Sketcher.Constraint("Horizontal", 0))
sketch10.addConstraint(Sketcher.Constraint("Vertical", 1))
sketch10.addConstraint(Sketcher.Constraint("Horizontal", 2))
sketch10.addConstraint(Sketcher.Constraint("Vertical", 3))
sketch10.addConstraint(Sketcher.Constraint("Horizontal", 4))
sketch10.addConstraint(Sketcher.Constraint("Coincident", 4, 1, 2, 2))
sketch10.addConstraint(Sketcher.Constraint("Vertical", 0, 2, 4, 2))
sketch10.addConstraint(Sketcher.Constraint("DistanceX", 0, 2, 0, 1, Q("8 mm")))
sketch10.addConstraint(Sketcher.Constraint("DistanceY", 1, 2, 1, 1, Q("1.6 mm")))
sketch10.addConstraint(Sketcher.Constraint("DistanceX", 0, 2, -1, 1, Q("4 mm")))
sketch10.addConstraint(Sketcher.Constraint("DistanceY", 0, 2, -1, 1, Q("3.9 mm")))
groove2 = doc.addObject("PartDesign::Groove", "Groove001")
body.addObject(groove2)
groove2.Profile = sketch10
groove2.ReferenceAxis = (sketch10, ["Axis0"])
groove2.Angle = 360

sketch11 = doc.addObject("Sketcher::SketchObject", "Sketch010")
body.addObject(sketch11)
sketch11.AttachmentSupport = (doc.YZ_Plane, [""])
sketch11.MapMode = "FlatFace"
sketch11.addGeometry(Part.LineSegment(V(2.3, 13.5, 0), V(0, 13.5, 0)), False)
sketch11.addGeometry(Part.LineSegment(V(0, 13.5, 0), V(0, -13.5, 0)), False)
sketch11.addGeometry(Part.LineSegment(V(0, -13.5, 0), V(2.3, -13.5, 0)), False)
sketch11.addGeometry(Part.ArcOfCircle(Part.Circle(V(2.3, -13.2, 0), V(0, 0, 1), 0.3), math.radians(-180), math.radians(-90)), False)
sketch11.addGeometry(Part.LineSegment(V(2, -13.2, 0), V(2, -2.1, 0)), False)
sketch11.addGeometry(Part.ArcOfCircle(Part.Circle(V(1.9, -2.1, 0), V(0, 0, 1), 0.1), math.radians(0), math.radians(90)), False)
sketch11.addGeometry(Part.LineSegment(V(1.9, -2, 0), V(1.5, -2, 0)), False)
sketch11.addGeometry(Part.LineSegment(V(1.5, -2, 0), V(1.5, 2, 0)), False)
sketch11.addGeometry(Part.LineSegment(V(1.5, 2, 0), V(1.9, 2, 0)), False)
sketch11.addGeometry(Part.ArcOfCircle(Part.Circle(V(1.9, 2.1, 0), V(0, 0, 1), 0.1), math.radians(-90), math.radians(0)), False)
sketch11.addGeometry(Part.LineSegment(V(2, 2.1, 0), V(2, 13.2, 0)), False)
sketch11.addGeometry(Part.ArcOfCircle(Part.Circle(V(2.3, 13.2, 0), V(0, 0, 1), 0.3), math.radians(90), math.radians(180)), False)
sketch11.addConstraint(Sketcher.Constraint("Coincident", 0, 2, 1, 1))
sketch11.addConstraint(Sketcher.Constraint("Coincident", 1, 2, 2, 1))
sketch11.addConstraint(Sketcher.Constraint("Tangent", 2, 2, 3, 2))
sketch11.addConstraint(Sketcher.Constraint("Tangent", 3, 1, 4, 1))
sketch11.addConstraint(Sketcher.Constraint("Tangent", 4, 2, 5, 1))
sketch11.addConstraint(Sketcher.Constraint("Tangent", 5, 2, 6, 1))
sketch11.addConstraint(Sketcher.Constraint("Coincident", 6, 2, 7, 1))
sketch11.addConstraint(Sketcher.Constraint("Coincident", 7, 2, 8, 1))
sketch11.addConstraint(Sketcher.Constraint("Tangent", 8, 2, 9, 1))
sketch11.addConstraint(Sketcher.Constraint("Tangent", 9, 2, 10, 1))
sketch11.addConstraint(Sketcher.Constraint("Tangent", 10, 2, 11, 2))
sketch11.addConstraint(Sketcher.Constraint("Tangent", 11, 1, 0, 1))
sketch11.addConstraint(Sketcher.Constraint("Horizontal", 0))
sketch11.addConstraint(Sketcher.Constraint("Vertical", 1))
sketch11.addConstraint(Sketcher.Constraint("Horizontal", 2))
sketch11.addConstraint(Sketcher.Constraint("Vertical", 4))
sketch11.addConstraint(Sketcher.Constraint("Horizontal", 6))
sketch11.addConstraint(Sketcher.Constraint("Vertical", 7))
sketch11.addConstraint(Sketcher.Constraint("Horizontal", 8))
sketch11.addConstraint(Sketcher.Constraint("Vertical", 10))
sketch11.addConstraint(Sketcher.Constraint("Equal", 5, 9))
sketch11.addConstraint(Sketcher.Constraint("Equal", 3, 11))
sketch11.addConstraint(Sketcher.Constraint("Symmetric", 0, 2, 1, 2, -1, 1))
sketch11.addConstraint(Sketcher.Constraint("Symmetric", 5, 3, 9, 3, -1))
sketch11.addConstraint(Sketcher.Constraint("Radius", 3, Q("0.3 mm")))
sketch11.addConstraint(Sketcher.Constraint("Radius", 5, Q("0.1 mm")))
sketch11.addConstraint(Sketcher.Constraint("DistanceY", 1, 2, 1, 1, Q("27 mm")))
sketch11.addConstraint(Sketcher.Constraint("DistanceY", 7, 1, 7, 2, Q("4 mm")))
sketch11.addConstraint(Sketcher.Constraint("DistanceX", 0, 2, 0, 1, Q("2.3 mm")))
sketch11.addConstraint(Sketcher.Constraint("DistanceX", 6, 2, 6, 1, Q("0.4 mm")))
groove3 = doc.addObject("PartDesign::Groove", "Groove002")
body.addObject(groove3)
groove3.Profile = sketch11
groove3.ReferenceAxis = (sketch11, ["V_Axis"])
groove3.Angle = 360

sketch12 = doc.addObject("Sketcher::SketchObject", "Sketch011")
body.addObject(sketch12)
sketch12.AttachmentSupport = (doc.XZ_Plane, [""])
sketch12.MapMode = "FlatFace"
sketch12.addGeometry(Part.LineSegment(V(0, -1.5, 0), V(0, 0, 0)), False)
sketch12.addGeometry(Part.LineSegment(V(0, 0, 0), V(13.5, 0, 0)), False)
sketch12.addGeometry(Part.LineSegment(V(13.5, 0, 0), V(13.5, -2.3, 0)), False)
sketch12.addGeometry(Part.ArcOfCircle(Part.Circle(V(13.2, -2.3, 0), V(0, 0, 1), 0.3), math.radians(0), math.radians(90)), False)
sketch12.addGeometry(Part.LineSegment(V(13.2, -2, 0), V(2.1, -2, 0)), False)
sketch12.addGeometry(Part.ArcOfCircle(Part.Circle(V(2.1, -1.9, 0), V(0, 0, 1), 0.1), math.radians(180), math.radians(270)), False)
sketch12.addGeometry(Part.LineSegment(V(2, -1.9, 0), V(2, -1.5, 0)), False)
sketch12.addGeometry(Part.LineSegment(V(2, -1.5, 0), V(0, -1.5, 0)), False)
sketch12.addConstraint(Sketcher.Constraint("Coincident", 0, 2, 1, 1))
sketch12.addConstraint(Sketcher.Constraint("Coincident", 1, 2, 2, 1))
sketch12.addConstraint(Sketcher.Constraint("Tangent", 2, 2, 3, 1))
sketch12.addConstraint(Sketcher.Constraint("Tangent", 3, 2, 4, 1))
sketch12.addConstraint(Sketcher.Constraint("Tangent", 4, 2, 5, 2))
sketch12.addConstraint(Sketcher.Constraint("Tangent", 5, 1, 6, 1))
sketch12.addConstraint(Sketcher.Constraint("Coincident", 6, 2, 7, 1))
sketch12.addConstraint(Sketcher.Constraint("Coincident", 7, 2, 0, 1))
sketch12.addConstraint(Sketcher.Constraint("Vertical", 0))
sketch12.addConstraint(Sketcher.Constraint("Horizontal", 1))
sketch12.addConstraint(Sketcher.Constraint("Vertical", 2))
sketch12.addConstraint(Sketcher.Constraint("Horizontal", 4))
sketch12.addConstraint(Sketcher.Constraint("Vertical", 6))
sketch12.addConstraint(Sketcher.Constraint("Horizontal", 7))
sketch12.addConstraint(Sketcher.Constraint("Coincident", 0, 2, -1, 1))
sketch12.addConstraint(Sketcher.Constraint("Radius", 3, Q("0.3 mm")))
sketch12.addConstraint(Sketcher.Constraint("Radius", 5, Q("0.1 mm")))
sketch12.addConstraint(Sketcher.Constraint("DistanceX", 7, 2, 7, 1, Q("2 mm")))
sketch12.addConstraint(Sketcher.Constraint("DistanceX", 1, 1, 1, 2, Q("13.5 mm")))
sketch12.addConstraint(Sketcher.Constraint("DistanceY", 0, 1, 0, 2, Q("1.5 mm")))
sketch12.addConstraint(Sketcher.Constraint("DistanceY", 2, 2, 2, 1, Q("2.3 mm")))
groove4 = doc.addObject("PartDesign::Groove", "Groove003")
body.addObject(groove4)
groove4.Profile = sketch12
groove4.ReferenceAxis = (sketch12, ["H_Axis"])
groove4.Angle = 360

doc.recompute()
